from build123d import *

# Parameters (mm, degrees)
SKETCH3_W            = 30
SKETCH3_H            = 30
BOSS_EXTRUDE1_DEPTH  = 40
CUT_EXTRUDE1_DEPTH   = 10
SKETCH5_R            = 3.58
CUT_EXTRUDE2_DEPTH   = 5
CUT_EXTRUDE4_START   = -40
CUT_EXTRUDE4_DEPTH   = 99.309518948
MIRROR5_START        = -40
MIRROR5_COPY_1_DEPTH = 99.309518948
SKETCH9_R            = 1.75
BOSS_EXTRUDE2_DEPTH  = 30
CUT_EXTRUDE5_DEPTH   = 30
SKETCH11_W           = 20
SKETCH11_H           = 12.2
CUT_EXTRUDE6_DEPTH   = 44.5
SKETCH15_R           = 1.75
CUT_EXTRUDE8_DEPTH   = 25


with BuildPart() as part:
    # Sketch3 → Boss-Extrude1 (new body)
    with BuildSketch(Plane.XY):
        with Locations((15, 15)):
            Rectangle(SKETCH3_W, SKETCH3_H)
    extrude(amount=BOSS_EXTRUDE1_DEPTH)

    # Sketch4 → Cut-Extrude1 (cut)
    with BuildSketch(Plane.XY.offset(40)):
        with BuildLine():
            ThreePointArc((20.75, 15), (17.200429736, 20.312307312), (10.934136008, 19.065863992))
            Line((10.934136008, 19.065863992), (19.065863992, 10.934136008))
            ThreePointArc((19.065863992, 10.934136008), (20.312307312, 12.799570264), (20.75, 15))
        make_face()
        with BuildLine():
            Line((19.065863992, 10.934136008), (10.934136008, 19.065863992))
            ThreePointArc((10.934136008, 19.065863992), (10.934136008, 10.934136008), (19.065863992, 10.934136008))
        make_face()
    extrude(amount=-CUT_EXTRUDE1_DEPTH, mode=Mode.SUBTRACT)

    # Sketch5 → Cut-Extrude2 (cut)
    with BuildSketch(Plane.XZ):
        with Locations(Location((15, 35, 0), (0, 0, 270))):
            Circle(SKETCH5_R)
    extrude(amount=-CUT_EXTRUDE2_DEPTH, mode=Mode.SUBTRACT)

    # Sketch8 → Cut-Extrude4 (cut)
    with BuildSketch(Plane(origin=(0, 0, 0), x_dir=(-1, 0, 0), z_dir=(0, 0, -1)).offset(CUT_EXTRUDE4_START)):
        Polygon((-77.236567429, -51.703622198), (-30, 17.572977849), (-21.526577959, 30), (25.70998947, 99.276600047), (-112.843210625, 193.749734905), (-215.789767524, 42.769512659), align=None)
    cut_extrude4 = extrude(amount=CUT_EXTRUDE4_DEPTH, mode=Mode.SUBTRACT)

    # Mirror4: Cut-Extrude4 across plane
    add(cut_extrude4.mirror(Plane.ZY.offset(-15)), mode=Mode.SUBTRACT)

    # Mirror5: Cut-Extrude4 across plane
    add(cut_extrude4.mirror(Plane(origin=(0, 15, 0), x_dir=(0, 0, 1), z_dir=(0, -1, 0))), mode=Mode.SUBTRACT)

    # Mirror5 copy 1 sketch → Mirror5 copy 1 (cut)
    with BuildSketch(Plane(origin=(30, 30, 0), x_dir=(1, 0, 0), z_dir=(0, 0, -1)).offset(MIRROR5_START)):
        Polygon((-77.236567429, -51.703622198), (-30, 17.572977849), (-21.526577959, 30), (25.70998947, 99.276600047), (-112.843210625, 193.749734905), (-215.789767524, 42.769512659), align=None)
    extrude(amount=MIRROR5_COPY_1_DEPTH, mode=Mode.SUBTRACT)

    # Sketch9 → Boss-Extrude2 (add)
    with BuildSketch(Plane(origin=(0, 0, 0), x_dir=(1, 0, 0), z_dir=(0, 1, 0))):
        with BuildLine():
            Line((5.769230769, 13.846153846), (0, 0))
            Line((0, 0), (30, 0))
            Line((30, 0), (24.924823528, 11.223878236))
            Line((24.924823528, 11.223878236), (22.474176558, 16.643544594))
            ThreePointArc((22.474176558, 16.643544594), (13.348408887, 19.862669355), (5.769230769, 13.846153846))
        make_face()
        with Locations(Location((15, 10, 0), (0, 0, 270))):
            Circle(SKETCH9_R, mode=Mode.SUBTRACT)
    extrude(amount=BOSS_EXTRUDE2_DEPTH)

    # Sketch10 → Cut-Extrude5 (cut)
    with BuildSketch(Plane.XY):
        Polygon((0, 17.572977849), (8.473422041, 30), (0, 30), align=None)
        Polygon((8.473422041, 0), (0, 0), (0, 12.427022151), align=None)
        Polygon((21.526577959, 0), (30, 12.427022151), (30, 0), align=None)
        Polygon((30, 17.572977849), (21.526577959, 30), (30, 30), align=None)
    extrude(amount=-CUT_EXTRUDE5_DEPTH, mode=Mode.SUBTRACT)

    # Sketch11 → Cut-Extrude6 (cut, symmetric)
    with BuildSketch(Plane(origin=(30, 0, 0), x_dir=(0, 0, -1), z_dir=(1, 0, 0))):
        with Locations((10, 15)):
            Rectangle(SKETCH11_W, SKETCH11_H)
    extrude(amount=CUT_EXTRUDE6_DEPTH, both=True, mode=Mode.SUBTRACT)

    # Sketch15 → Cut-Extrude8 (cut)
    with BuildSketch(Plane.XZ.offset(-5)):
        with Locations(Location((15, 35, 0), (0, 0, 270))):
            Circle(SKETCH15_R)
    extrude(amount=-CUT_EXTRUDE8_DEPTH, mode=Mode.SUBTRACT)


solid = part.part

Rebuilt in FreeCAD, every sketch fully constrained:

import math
import FreeCAD as App
import Part
import Sketcher

V = App.Vector
Q = App.Units.Quantity

doc = App.newDocument("Part")
body = doc.addObject("PartDesign::Body", "Body")

# Sketch on XY plane
sketch1 = body.newObject("Sketcher::SketchObject", "Sketch")
sketch1.AttachmentSupport = (doc.getObject("XY_Plane"), [""])
sketch1.MapMode = "FlatFace"
sketch1.addGeometry([
    Part.LineSegment(V(0, 30, 0), V(0, 0, 0)),
    Part.LineSegment(V(0, 0, 0), V(30, 0, 0)),
    Part.LineSegment(V(30, 0, 0), V(30, 30, 0)),
    Part.LineSegment(V(30, 30, 0), V(0, 30, 0)),
], False)
sketch1.addConstraint([
    Sketcher.Constraint("Coincident", 0, 2, 1, 1),
    Sketcher.Constraint("Coincident", 1, 2, 2, 1),
    Sketcher.Constraint("Coincident", 2, 2, 3, 1),
    Sketcher.Constraint("Coincident", 3, 2, 0, 1),
    Sketcher.Constraint("Vertical", 0),
    Sketcher.Constraint("Horizontal", 1),
    Sketcher.Constraint("Vertical", 2),
    Sketcher.Constraint("Horizontal", 3),
    Sketcher.Constraint("Coincident", 0, 2, -1, 1),
    Sketcher.Constraint("Equal", 3, 0),
    Sketcher.Constraint("DistanceX", 1, 1, 1, 2, Q("30 mm")),
])
pad1 = body.newObject("PartDesign::Pad", "Pad")
pad1.Profile = sketch1
pad1.Length = 40

# Sketch on XY plane
sketch2 = body.newObject("Sketcher::SketchObject", "Sketch001")
sketch2.AttachmentSupport = (doc.getObject("XY_Plane"), [""])
sketch2.MapMode = "FlatFace"
sketch2.AttachmentOffset = App.Placement(V(0, 0, 40), App.Rotation())
sketch2.addGeometry([
    Part.ArcOfCircle(Part.Circle(V(15, 15, 0), V(0, 0, 1), 5.8), math.radians(0), math.radians(135)),
    Part.ArcOfCircle(Part.Circle(V(15, 15, 0), V(0, 0, 1), 5.8), math.radians(135), math.radians(315)),
    Part.ArcOfCircle(Part.Circle(V(15, 15, 0), V(0, 0, 1), 5.8), math.radians(-45), math.radians(0)),
], False)
sketch2.addConstraint([
    Sketcher.Constraint("Tangent", 0, 2, 1, 1),
    Sketcher.Constraint("Tangent", 1, 2, 2, 1),
    Sketcher.Constraint("Tangent", 2, 2, 0, 1),
    Sketcher.Constraint("Horizontal", 1, 3, 2, 2),
    Sketcher.Constraint("Radius", 0, Q("5.75 mm")),
    Sketcher.Constraint("DistanceX", -1, 1, 0, 3, Q("15 mm")),
    Sketcher.Constraint("DistanceY", -1, 1, 0, 3, Q("15 mm")),
    Sketcher.Constraint("DistanceX", -1, 1, 0, 2, Q("10.934136 mm")),
    Sketcher.Constraint("DistanceX", -1, 1, 1, 2, Q("19.065864 mm")),
])
pocket1 = body.newObject("PartDesign::Pocket", "Pocket")
pocket1.Profile = sketch2
pocket1.Length = 10

# Sketch on XZ plane
sketch3 = body.newObject("Sketcher::SketchObject", "Sketch002")
sketch3.AttachmentSupport = (doc.getObject("XZ_Plane"), [""])
sketch3.MapMode = "FlatFace"
sketch3.addGeometry(Part.Circle(V(15, 35, 0), V(0, 0, 1), 3.6), False)
sketch3.addConstraint([
    Sketcher.Constraint("Diameter", 0, Q("7.16 mm")),
    Sketcher.Constraint("DistanceX", -1, 1, 0, 3, Q("15 mm")),
    Sketcher.Constraint("DistanceY", -1, 1, 0, 3, Q("35 mm")),
])
pocket2 = body.newObject("PartDesign::Pocket", "Pocket001")
pocket2.Profile = sketch3
pocket2.Length = 5

# Sketch on XY plane
sketch4 = body.newObject("Sketcher::SketchObject", "Sketch003")
sketch4.AttachmentSupport = (doc.getObject("XY_Plane"), [""])
sketch4.MapMode = "FlatFace"
sketch4.AttachmentOffset = App.Placement(V(0, 0, 40), App.Rotation())
sketch4.addGeometry([
    Part.LineSegment(V(77, -52, 0), V(30, 18, 0)),  # 0
    Part.LineSegment(V(30, 18, 0), V(22, 30, 0)),  # 1
    Part.LineSegment(V(22, 30, 0), V(-26, 99, 0)),  # 2
    Part.LineSegment(V(-26, 99, 0), V(113, 194, 0)),  # 3
    Part.LineSegment(V(113, 194, 0), V(216, 43, 0)),  # 4
    Part.LineSegment(V(216, 43, 0), V(77, -52, 0)),  # 5
], False)
sketch4.addConstraint([
    Sketcher.Constraint("Coincident", 0, 2, 1, 1),
    Sketcher.Constraint("Coincident", 1, 2, 2, 1),
    Sketcher.Constraint("Coincident", 2, 2, 3, 1),
    Sketcher.Constraint("Coincident", 3, 2, 4, 1),
    Sketcher.Constraint("Coincident", 4, 2, 5, 1),
    Sketcher.Constraint("Coincident", 5, 2, 0, 1),
    Sketcher.Constraint("Parallel", 0, 1),
    Sketcher.Constraint("Parallel", 1, 2),
    Sketcher.Constraint("Perpendicular", 2, 3),
    Sketcher.Constraint("Perpendicular", 3, 4),
    Sketcher.Constraint("Perpendicular", 4, 5),
    Sketcher.Constraint("Equal", 0, 2),
    Sketcher.Constraint("DistanceX", -1, 1, 0, 2, Q("30 mm")),
    Sketcher.Constraint("DistanceY", -1, 1, 1, 2, Q("30 mm")),
    Sketcher.Constraint("DistanceY", -1, 1, 2, 2, Q("99.2766 mm")),
    Sketcher.Constraint("DistanceX", 2, 2, 3, 2, Q("138.5532 mm")),
    Sketcher.Constraint("Distance", 0, Q("83.848319 mm")),
    Sketcher.Constraint("DistanceX", 2, 2, -1, 1, Q("25.709989 mm")),
])
pocket3 = body.newObject("PartDesign::Pocket", "Pocket002")
pocket3.Profile = sketch4
pocket3.Length = 99.309519
doc.recompute()

datumplane = body.newObject("PartDesign::Plane", "DatumPlane")
datumplane.AttachmentSupport = (doc.getObject("YZ_Plane"), [""])
datumplane.MapMode = "FlatFace"
datumplane.AttachmentOffset = App.Placement(V(0, 0, 15), App.Rotation())
mirrored = body.newObject("PartDesign::Mirrored", "Mirrored")
mirrored.Originals = [pocket3]
mirrored.MirrorPlane = (datumplane, [""])
body.Tip = mirrored
doc.recompute()

datumplane2 = body.newObject("PartDesign::Plane", "DatumPlane001")
datumplane2.AttachmentSupport = (doc.getObject("XZ_Plane"), [""])
datumplane2.MapMode = "FlatFace"
datumplane2.AttachmentOffset = App.Placement(V(0, 0, -15), App.Rotation())
mirrored2 = body.newObject("PartDesign::Mirrored", "Mirrored001")
mirrored2.Originals = [pocket3]
mirrored2.MirrorPlane = (datumplane2, [""])
body.Tip = mirrored2

# Sketch on XY plane
sketch5 = body.newObject("Sketcher::SketchObject", "Sketch004")
sketch5.AttachmentSupport = (doc.getObject("XY_Plane"), [""])
sketch5.MapMode = "FlatFace"
sketch5.AttachmentOffset = App.Placement(V(0, 0, 40), App.Rotation())
sketch5.addGeometry([
    Part.LineSegment(V(-47, 82, 0), V(0, 12, 0)),  # 0
    Part.LineSegment(V(0, 12, 0), V(8, 0, 0)),  # 1
    Part.LineSegment(V(8, 0, 0), V(56, -69, 0)),  # 2
    Part.LineSegment(V(56, -69, 0), V(-83, -164, 0)),  # 3
    Part.LineSegment(V(-83, -164, 0), V(-186, -13, 0)),  # 4
    Part.LineSegment(V(-186, -13, 0), V(-47, 82, 0)),  # 5
], False)
sketch5.addConstraint([
    Sketcher.Constraint("Coincident", 0, 2, 1, 1),
    Sketcher.Constraint("Coincident", 1, 2, 2, 1),
    Sketcher.Constraint("Coincident", 2, 2, 3, 1),
    Sketcher.Constraint("Coincident", 3, 2, 4, 1),
    Sketcher.Constraint("Coincident", 4, 2, 5, 1),
    Sketcher.Constraint("Coincident", 5, 2, 0, 1),
    Sketcher.Constraint("PointOnObject", 0, 2, -2),
    Sketcher.Constraint("PointOnObject", 1, 2, -1),
    Sketcher.Constraint("Parallel", 0, 1),
    Sketcher.Constraint("Parallel", 1, 2),
    Sketcher.Constraint("Perpendicular", 2, 3),
    Sketcher.Constraint("Perpendicular", 3, 4),
    Sketcher.Constraint("Perpendicular", 4, 5),
    Sketcher.Constraint("Equal", 0, 2),
    Sketcher.Constraint("DistanceY", 2, 2, -1, 1, Q("69.2766 mm")),
    Sketcher.Constraint("DistanceX", 3, 2, 2, 2, Q("138.5532 mm")),
    Sketcher.Constraint("Distance", 0, Q("83.848319 mm")),
    Sketcher.Constraint("DistanceX", -1, 1, 2, 2, Q("55.709989 mm")),
])
pocket4 = body.newObject("PartDesign::Pocket", "Pocket003")
pocket4.Profile = sketch5
pocket4.Length = 99.309519

# Sketch on XZ plane
sketch6 = body.newObject("Sketcher::SketchObject", "Sketch005")
sketch6.AttachmentSupport = (doc.getObject("XZ_Plane"), [""])
sketch6.MapMode = "FlatFace"
sketch6.addGeometry([
    Part.LineSegment(V(5.8, -13.8, 0), V(0, 0, 0)),  # 0
    Part.LineSegment(V(0, 0, 0), V(30, 0, 0)),  # 1
    Part.LineSegment(V(30, 0, 0), V(24.9, -11.2, 0)),  # 2
    Part.LineSegment(V(24.9, -11.2, 0), V(22.5, -16.6, 0)),  # 3
    Part.ArcOfCircle(Part.Circle(V(15, -10, 0), V(0, 0, 1), 10), math.radians(-157), math.radians(-42)),  # 4
    Part.Circle(V(15, -10, 0), V(0, 0, 1), 1.8),  # 5
], False)
sketch6.addConstraint([
    Sketcher.Constraint("Coincident", 0, 2, 1, 1),
    Sketcher.Constraint("Coincident", 1, 2, 2, 1),
    Sketcher.Constraint("Coincident", 2, 2, 3, 1),
    Sketcher.Constraint("Coincident", 3, 2, 4, 2),
    Sketcher.Constraint("Tangent", 4, 1, 0, 1),
    Sketcher.Constraint("Horizontal", 1),
    Sketcher.Constraint("Coincident", 0, 2, -1, 1),
    Sketcher.Constraint("Coincident", 5, 3, 4, 3),
    Sketcher.Constraint("Parallel", 2, 3),
    Sketcher.Constraint("Radius", 4, Q("10 mm")),
    Sketcher.Constraint("Diameter", 5, Q("3.5 mm")),
    Sketcher.Constraint("DistanceX", 1, 1, 1, 2, Q("30 mm")),
    Sketcher.Constraint("Distance", 0, Q("15 mm")),
    Sketcher.Constraint("DistanceX", -1, 1, 4, 3, Q("15 mm")),
    Sketcher.Constraint("Distance", 2, Q("12.317989 mm")),
    Sketcher.Constraint("Distance", 3, Q("5.947979 mm")),
])
pad2 = body.newObject("PartDesign::Pad", "Pad001")
pad2.Profile = sketch6
pad2.Length = 30
pad2.Reversed = True

# Sketch on XY plane
sketch7 = body.newObject("Sketcher::SketchObject", "Sketch006")
sketch7.AttachmentSupport = (doc.getObject("XY_Plane"), [""])
sketch7.MapMode = "FlatFace"
sketch7.addGeometry([
    Part.LineSegment(V(0, 18, 0), V(8, 30, 0)),  # 0
    Part.LineSegment(V(8, 30, 0), V(0, 30, 0)),  # 1
    Part.LineSegment(V(0, 30, 0), V(0, 18, 0)),  # 2
    Part.LineSegment(V(0, 0, 0), V(8, 0, 0)),  # 3
    Part.LineSegment(V(8, 0, 0), V(0, 12, 0)),  # 4
    Part.LineSegment(V(0, 12, 0), V(0, 0, 0)),  # 5
    Part.LineSegment(V(30, 12, 0), V(22, 0, 0)),  # 6
    Part.LineSegment(V(22, 0, 0), V(30, 0, 0)),  # 7
    Part.LineSegment(V(30, 0, 0), V(30, 12, 0)),  # 8
    Part.LineSegment(V(22, 30, 0), V(30, 18, 0)),  # 9
    Part.LineSegment(V(30, 18, 0), V(30, 30, 0)),  # 10
    Part.LineSegment(V(30, 30, 0), V(22, 30, 0)),  # 11
], False)
sketch7.addConstraint([
    Sketcher.Constraint("Coincident", 0, 2, 1, 1),
    Sketcher.Constraint("Coincident", 1, 2, 2, 1),
    Sketcher.Constraint("Coincident", 2, 2, 0, 1),
    Sketcher.Constraint("Coincident", 3, 2, 4, 1),
    Sketcher.Constraint("Coincident", 4, 2, 5, 1),
    Sketcher.Constraint("Coincident", 5, 2, 3, 1),
    Sketcher.Constraint("Coincident", 6, 2, 7, 1),
    Sketcher.Constraint("Coincident", 7, 2, 8, 1),
    Sketcher.Constraint("Coincident", 8, 2, 6, 1),
    Sketcher.Constraint("Coincident", 9, 2, 10, 1),
    Sketcher.Constraint("Coincident", 10, 2, 11, 1),
    Sketcher.Constraint("Coincident", 11, 2, 9, 1),
    Sketcher.Constraint("Horizontal", 1),
    Sketcher.Constraint("Vertical", 2),
    Sketcher.Constraint("Horizontal", 3),
    Sketcher.Constraint("Vertical", 5),
    Sketcher.Constraint("Horizontal", 7),
    Sketcher.Constraint("Vertical", 8),
    Sketcher.Constraint("Vertical", 10),
    Sketcher.Constraint("Horizontal", 11),
    Sketcher.Constraint("Coincident", 5, 2, -1, 1),
    Sketcher.Constraint("PointOnObject", 1, 2, -2),
    Sketcher.Constraint("PointOnObject", 6, 2, -1),
    Sketcher.Constraint("Parallel", 0, 6),
    Sketcher.Constraint("Parallel", 4, 9),
    Sketcher.Constraint("Horizontal", 4, 2, 8, 2),
    Sketcher.Constraint("Horizontal", 2, 2, 9, 2),
    Sketcher.Constraint("Horizontal", 1, 2, 10, 2),
    Sketcher.Constraint("Vertical", 0, 2, 3, 2),
    Sketcher.Constraint("Vertical", 8, 2, 9, 2),
    Sketcher.Constraint("Vertical", 6, 2, 11, 2),
    Sketcher.Constraint("DistanceY", -1, 1, 0, 2, Q("30 mm")),
    Sketcher.Constraint("DistanceX", -1, 1, 7, 2, Q("30 mm")),
    Sketcher.Constraint("DistanceX", 1, 2, 1, 1, Q("8.473422 mm")),
    Sketcher.Constraint("DistanceY", 2, 2, 2, 1, Q("12.427022 mm")),
])
pocket5 = body.newObject("PartDesign::Pocket", "Pocket004")
pocket5.Profile = sketch7
pocket5.Length = 30

# Sketch on YZ plane
sketch8 = body.newObject("Sketcher::SketchObject", "Sketch007")
sketch8.AttachmentSupport = (doc.getObject("YZ_Plane"), [""])
sketch8.MapMode = "FlatFace"
sketch8.AttachmentOffset = App.Placement(V(0, 0, 30), App.Rotation())
sketch8.addGeometry([
    Part.LineSegment(V(21, 0, 0), V(9, 0, 0)),
    Part.LineSegment(V(9, 0, 0), V(9, -20, 0)),
    Part.LineSegment(V(9, -20, 0), V(21, -20, 0)),
    Part.LineSegment(V(21, -20, 0), V(21, 0, 0)),
], False)
sketch8.addConstraint([
    Sketcher.Constraint("Coincident", 0, 2, 1, 1),
    Sketcher.Constraint("Coincident", 1, 2, 2, 1),
    Sketcher.Constraint("Coincident", 2, 2, 3, 1),
    Sketcher.Constraint("Coincident", 3, 2, 0, 1),
    Sketcher.Constraint("Horizontal", 0),
    Sketcher.Constraint("Vertical", 1),
    Sketcher.Constraint("Horizontal", 2),
    Sketcher.Constraint("Vertical", 3),
    Sketcher.Constraint("PointOnObject", 0, 2, -1),
    Sketcher.Constraint("DistanceY", 1, 2, 1, 1, Q("20 mm")),
    Sketcher.Constraint("DistanceX", 0, 2, 0, 1, Q("12.2 mm")),
    Sketcher.Constraint("DistanceX", -1, 1, 0, 2, Q("8.9 mm")),
])
pocket6 = body.newObject("PartDesign::Pocket", "Pocket005")
pocket6.Profile = sketch8
pocket6.Length = 89
pocket6.Midplane = True

# Sketch on XZ plane
sketch9 = body.newObject("Sketcher::SketchObject", "Sketch008")
sketch9.AttachmentSupport = (doc.getObject("XZ_Plane"), [""])
sketch9.MapMode = "FlatFace"
sketch9.AttachmentOffset = App.Placement(V(0, 0, -5), App.Rotation())
sketch9.addGeometry(Part.Circle(V(15, 35, 0), V(0, 0, 1), 1.8), False)
sketch9.addConstraint([
    Sketcher.Constraint("Diameter", 0, Q("3.5 mm")),
    Sketcher.Constraint("DistanceX", -1, 1, 0, 3, Q("15 mm")),
    Sketcher.Constraint("DistanceY", -1, 1, 0, 3, Q("35 mm")),
])
pocket7 = body.newObject("PartDesign::Pocket", "Pocket006")
pocket7.Profile = sketch9
pocket7.Length = 25

doc.recompute()
